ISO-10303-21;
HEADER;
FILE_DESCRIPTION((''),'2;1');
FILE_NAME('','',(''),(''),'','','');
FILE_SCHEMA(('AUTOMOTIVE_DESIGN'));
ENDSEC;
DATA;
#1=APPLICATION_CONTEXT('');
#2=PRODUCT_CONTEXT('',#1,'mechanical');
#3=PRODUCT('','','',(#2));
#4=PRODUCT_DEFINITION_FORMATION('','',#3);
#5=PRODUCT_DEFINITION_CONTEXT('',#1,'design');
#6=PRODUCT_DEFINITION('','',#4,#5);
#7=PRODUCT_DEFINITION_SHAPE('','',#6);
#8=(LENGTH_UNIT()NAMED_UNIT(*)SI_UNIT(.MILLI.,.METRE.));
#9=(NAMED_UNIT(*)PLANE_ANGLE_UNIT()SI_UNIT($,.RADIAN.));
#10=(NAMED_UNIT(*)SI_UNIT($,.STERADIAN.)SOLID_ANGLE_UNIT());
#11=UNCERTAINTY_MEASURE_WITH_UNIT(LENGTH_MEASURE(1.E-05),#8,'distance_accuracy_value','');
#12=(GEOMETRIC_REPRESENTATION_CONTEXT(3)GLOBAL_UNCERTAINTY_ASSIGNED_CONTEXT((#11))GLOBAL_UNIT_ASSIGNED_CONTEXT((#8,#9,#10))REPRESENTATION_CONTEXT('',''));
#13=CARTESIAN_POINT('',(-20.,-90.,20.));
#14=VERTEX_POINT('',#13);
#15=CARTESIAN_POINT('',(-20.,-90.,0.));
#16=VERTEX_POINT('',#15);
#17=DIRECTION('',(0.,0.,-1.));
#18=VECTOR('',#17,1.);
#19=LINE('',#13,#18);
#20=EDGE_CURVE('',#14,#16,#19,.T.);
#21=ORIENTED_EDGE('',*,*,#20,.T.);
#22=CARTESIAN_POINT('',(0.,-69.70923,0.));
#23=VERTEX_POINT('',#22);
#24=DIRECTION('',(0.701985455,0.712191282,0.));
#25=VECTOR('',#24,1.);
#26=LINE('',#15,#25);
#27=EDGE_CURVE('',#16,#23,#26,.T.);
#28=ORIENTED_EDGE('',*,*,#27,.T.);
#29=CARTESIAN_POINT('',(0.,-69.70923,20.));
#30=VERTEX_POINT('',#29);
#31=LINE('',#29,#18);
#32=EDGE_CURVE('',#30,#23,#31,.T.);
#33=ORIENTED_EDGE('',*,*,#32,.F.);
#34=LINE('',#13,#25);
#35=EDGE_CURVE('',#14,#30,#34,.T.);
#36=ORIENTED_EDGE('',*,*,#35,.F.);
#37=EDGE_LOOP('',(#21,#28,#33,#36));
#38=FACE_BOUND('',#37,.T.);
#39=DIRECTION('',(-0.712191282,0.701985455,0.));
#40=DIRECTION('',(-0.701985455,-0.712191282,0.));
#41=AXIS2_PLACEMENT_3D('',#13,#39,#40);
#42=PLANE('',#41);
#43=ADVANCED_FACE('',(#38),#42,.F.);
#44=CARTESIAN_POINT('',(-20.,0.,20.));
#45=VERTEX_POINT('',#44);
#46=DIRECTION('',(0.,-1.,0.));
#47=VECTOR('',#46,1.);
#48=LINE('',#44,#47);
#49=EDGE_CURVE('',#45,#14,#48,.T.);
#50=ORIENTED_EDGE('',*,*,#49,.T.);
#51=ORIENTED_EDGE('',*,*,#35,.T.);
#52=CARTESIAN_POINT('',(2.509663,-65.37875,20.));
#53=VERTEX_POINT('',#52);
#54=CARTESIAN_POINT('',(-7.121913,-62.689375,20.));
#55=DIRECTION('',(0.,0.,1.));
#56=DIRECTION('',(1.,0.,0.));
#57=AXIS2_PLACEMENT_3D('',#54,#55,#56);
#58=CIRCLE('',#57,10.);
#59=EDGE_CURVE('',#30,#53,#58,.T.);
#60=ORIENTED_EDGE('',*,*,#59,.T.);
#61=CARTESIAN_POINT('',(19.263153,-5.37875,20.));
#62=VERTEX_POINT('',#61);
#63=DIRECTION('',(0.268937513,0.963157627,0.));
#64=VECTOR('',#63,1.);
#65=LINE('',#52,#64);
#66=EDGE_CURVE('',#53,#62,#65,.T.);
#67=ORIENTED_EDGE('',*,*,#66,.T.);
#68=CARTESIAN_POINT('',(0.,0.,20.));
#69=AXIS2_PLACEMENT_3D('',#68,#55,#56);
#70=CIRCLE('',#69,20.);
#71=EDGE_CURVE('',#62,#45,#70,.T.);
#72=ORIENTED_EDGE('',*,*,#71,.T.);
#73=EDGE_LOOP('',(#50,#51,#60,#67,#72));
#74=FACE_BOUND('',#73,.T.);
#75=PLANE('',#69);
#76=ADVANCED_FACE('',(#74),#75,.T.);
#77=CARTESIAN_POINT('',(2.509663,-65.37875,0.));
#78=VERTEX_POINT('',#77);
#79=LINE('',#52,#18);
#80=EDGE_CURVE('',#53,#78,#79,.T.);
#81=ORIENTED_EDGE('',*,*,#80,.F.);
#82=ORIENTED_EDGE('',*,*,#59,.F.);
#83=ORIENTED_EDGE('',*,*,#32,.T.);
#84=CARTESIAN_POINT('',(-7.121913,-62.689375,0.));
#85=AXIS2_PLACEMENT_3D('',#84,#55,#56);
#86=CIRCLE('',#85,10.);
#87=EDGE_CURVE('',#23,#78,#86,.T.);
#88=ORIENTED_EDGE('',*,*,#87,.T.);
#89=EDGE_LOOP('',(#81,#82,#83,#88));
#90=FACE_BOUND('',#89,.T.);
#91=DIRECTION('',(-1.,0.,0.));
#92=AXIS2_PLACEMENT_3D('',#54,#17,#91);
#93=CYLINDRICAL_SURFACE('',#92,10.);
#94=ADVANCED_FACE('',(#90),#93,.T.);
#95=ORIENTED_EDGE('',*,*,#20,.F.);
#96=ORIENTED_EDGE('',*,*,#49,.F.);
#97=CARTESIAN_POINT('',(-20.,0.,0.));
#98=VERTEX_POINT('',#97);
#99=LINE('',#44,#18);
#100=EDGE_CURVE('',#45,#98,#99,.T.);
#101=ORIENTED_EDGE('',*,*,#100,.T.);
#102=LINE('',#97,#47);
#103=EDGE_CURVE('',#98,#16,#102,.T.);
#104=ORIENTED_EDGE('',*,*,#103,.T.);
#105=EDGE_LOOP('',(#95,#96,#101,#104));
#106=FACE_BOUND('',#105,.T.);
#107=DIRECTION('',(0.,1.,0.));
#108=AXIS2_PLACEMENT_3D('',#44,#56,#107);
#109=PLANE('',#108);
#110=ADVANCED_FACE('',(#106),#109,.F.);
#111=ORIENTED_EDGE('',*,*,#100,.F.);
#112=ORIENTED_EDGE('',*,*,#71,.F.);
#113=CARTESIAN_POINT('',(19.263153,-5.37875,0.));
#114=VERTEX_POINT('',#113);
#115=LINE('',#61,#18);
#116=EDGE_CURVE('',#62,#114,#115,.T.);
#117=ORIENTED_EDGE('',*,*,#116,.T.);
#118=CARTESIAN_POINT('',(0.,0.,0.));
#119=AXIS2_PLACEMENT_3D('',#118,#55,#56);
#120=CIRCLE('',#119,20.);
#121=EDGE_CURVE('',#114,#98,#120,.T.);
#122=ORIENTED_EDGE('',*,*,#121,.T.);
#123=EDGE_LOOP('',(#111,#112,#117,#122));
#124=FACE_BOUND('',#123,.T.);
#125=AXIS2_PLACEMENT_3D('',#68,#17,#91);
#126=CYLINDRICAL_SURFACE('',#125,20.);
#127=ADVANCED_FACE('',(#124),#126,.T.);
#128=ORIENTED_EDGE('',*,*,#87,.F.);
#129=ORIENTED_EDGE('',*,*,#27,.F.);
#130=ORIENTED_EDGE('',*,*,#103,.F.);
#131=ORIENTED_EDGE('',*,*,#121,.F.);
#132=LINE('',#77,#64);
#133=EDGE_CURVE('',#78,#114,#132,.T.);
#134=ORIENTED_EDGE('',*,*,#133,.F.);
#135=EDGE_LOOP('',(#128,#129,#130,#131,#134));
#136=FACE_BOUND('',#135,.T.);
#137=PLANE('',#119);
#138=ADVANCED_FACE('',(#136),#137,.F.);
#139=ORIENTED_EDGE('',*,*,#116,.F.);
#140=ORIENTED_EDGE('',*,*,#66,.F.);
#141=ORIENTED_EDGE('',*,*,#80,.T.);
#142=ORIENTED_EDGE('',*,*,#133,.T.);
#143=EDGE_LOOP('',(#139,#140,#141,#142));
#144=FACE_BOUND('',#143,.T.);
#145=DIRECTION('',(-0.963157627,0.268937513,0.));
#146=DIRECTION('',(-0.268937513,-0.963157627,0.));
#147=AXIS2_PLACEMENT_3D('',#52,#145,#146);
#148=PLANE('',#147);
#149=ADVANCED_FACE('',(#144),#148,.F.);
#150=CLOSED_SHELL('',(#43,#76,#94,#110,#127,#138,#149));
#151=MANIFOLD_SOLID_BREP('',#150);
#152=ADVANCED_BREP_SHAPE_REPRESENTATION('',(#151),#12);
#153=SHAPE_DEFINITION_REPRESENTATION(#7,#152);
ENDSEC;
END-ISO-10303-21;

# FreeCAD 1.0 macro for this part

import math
import FreeCAD as App
import Part
import Sketcher

V = App.Vector
Q = App.Units.Quantity

doc = App.newDocument("Part")
body = doc.addObject("PartDesign::Body", "Body")

sketch1 = body.newObject("Sketcher::SketchObject", "Sketch")
sketch1.AttachmentSupport = (doc.getObject("XY_Plane"), [""])
sketch1.MapMode = "FlatFace"
sketch1.addGeometry(Part.LineSegment(V(-20, 0, 0), V(-20, -90, 0)), False)
sketch1.addGeometry(Part.LineSegment(V(-20, -90, 0), V(0, -70, 0)), False)
sketch1.addGeometry(Part.ArcOfCircle(Part.Circle(V(-7, -63, 0), V(0, 0, 1), 10), math.radians(-45), math.radians(-16)), False)
sketch1.addGeometry(Part.LineSegment(V(3, -65, 0), V(19, -5, 0)), False)
sketch1.addGeometry(Part.ArcOfCircle(Part.Circle(V(0, 0, 0), V(0, 0, 1), 20), math.radians(-16), math.radians(180)), False)
sketch1.addConstraint(Sketcher.Constraint("Coincident", 0, 2, 1, 1))
sketch1.addConstraint(Sketcher.Constraint("Tangent", 1, 2, 2, 1))
sketch1.addConstraint(Sketcher.Constraint("Tangent", 2, 2, 3, 1))
sketch1.addConstraint(Sketcher.Constraint("Tangent", 3, 2, 4, 1))
sketch1.addConstraint(Sketcher.Constraint("Tangent", 4, 2, 0, 1))
sketch1.addConstraint(Sketcher.Constraint("Vertical", 0))
sketch1.addConstraint(Sketcher.Constraint("Coincident", 4, 3, -1, 1))
sketch1.addConstraint(Sketcher.Constraint("PointOnObject", 1, 2, -2))
sketch1.addConstraint(Sketcher.Constraint("Radius", 2, Q("10 mm")))
sketch1.addConstraint(Sketcher.Constraint("Radius", 4, Q("20 mm")))
sketch1.addConstraint(Sketcher.Constraint("DistanceY", 0, 2, 0, 1, Q("90 mm")))
sketch1.addConstraint(Sketcher.Constraint("DistanceY", 2, 2, 3, 2, Q("60 mm")))
pad1 = body.newObject("PartDesign::Pad", "Pad")
pad1.Profile = sketch1
pad1.Length = 20

doc.recompute()
